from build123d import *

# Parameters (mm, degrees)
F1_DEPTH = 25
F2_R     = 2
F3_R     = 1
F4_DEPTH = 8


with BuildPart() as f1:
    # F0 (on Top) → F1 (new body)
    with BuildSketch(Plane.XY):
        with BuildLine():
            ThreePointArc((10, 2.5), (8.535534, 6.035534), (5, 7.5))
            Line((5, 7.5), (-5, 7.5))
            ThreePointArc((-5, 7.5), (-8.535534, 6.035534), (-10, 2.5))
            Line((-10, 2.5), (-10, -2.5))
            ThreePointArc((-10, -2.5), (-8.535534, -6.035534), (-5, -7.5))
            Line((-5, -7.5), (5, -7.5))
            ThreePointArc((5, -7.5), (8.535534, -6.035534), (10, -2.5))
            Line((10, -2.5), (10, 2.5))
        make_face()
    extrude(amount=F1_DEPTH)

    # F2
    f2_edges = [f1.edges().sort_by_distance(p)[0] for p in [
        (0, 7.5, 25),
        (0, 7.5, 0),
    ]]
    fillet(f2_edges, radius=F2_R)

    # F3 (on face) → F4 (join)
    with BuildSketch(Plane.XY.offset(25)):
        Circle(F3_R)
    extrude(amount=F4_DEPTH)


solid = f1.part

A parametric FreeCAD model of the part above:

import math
import FreeCAD as App
import Part
import Sketcher

V = App.Vector


def edges_at(feature, points):
    """Names of the edges that pass closest to the given points."""
    edges = feature.Shape.Edges
    near = lambda p: min(range(len(edges)), key=lambda i: edges[i].distToShape(Part.Vertex(*p))[0])
    return sorted({f"Edge{near(p) + 1}" for p in points})

doc = App.newDocument("Part")
body = doc.addObject("PartDesign::Body", "Body")

# Sketch on XY plane
sketch1 = body.newObject("Sketcher::SketchObject", "Sketch")
sketch1.AttachmentSupport = (doc.getObject("XY_Plane"), [""])
sketch1.MapMode = "FlatFace"
sketch1.addGeometry([
    Part.ArcOfCircle(Part.Circle(V(5, 2.5, 0), V(0, 0, 1), 5), math.radians(0), math.radians(90)),  # 0
    Part.LineSegment(V(5, 7.5, 0), V(-5, 7.5, 0)),  # 1
    Part.ArcOfCircle(Part.Circle(V(-5, 2.5, 0), V(0, 0, 1), 5), math.radians(90), math.radians(180)),  # 2
    Part.LineSegment(V(-10, 2.5, 0), V(-10, -2.5, 0)),  # 3
    Part.ArcOfCircle(Part.Circle(V(-5, -2.5, 0), V(0, 0, 1), 5), math.radians(180), math.radians(270)),  # 4
    Part.LineSegment(V(-5, -7.5, 0), V(5, -7.5, 0)),  # 5
    Part.ArcOfCircle(Part.Circle(V(5, -2.5, 0), V(0, 0, 1), 5), math.radians(-90), math.radians(0)),  # 6
    Part.LineSegment(V(10, -2.5, 0), V(10, 2.5, 0)),  # 7
], False)
sketch1.addConstraint([
    Sketcher.Constraint("Tangent", 0, 2, 1, 1),
    Sketcher.Constraint("Tangent", 1, 2, 2, 1),
    Sketcher.Constraint("Tangent", 2, 2, 3, 1),
    Sketcher.Constraint("Tangent", 3, 2, 4, 1),
    Sketcher.Constraint("Tangent", 4, 2, 5, 1),
    Sketcher.Constraint("Tangent", 5, 2, 6, 1),
    Sketcher.Constraint("Tangent", 6, 2, 7, 1),
    Sketcher.Constraint("Tangent", 7, 2, 0, 1),
    Sketcher.Constraint("Horizontal", 1),
    Sketcher.Constraint("Vertical", 3),
    Sketcher.Constraint("Horizontal", 5),
    Sketcher.Constraint("Vertical", 7),
    Sketcher.Constraint("Equal", 0, 2),
    Sketcher.Constraint("Equal", 2, 4),
    Sketcher.Constraint("Equal", 4, 6),
    Sketcher.Constraint("Symmetric", 0, 3, 4, 3, -1, 1),
    Sketcher.Constraint("Radius", 0, 5.0),
    Sketcher.Constraint("DistanceX", 1, 2, 1, 1, 10.0),
    Sketcher.Constraint("DistanceY", 3, 2, 3, 1, 5.0),
])
pad1 = body.newObject("PartDesign::Pad", "Pad")
pad1.Profile = sketch1
pad1.Length = 25
doc.recompute()

fillet = body.newObject("PartDesign::Fillet", "Fillet")
fillet.Base = (pad1, edges_at(pad1, [(0, 7.5, 25), (0, 7.5, 0)]))
fillet.Radius = 2

# Sketch on XY plane
sketch2 = body.newObject("Sketcher::SketchObject", "Sketch001")
sketch2.AttachmentSupport = (doc.getObject("XY_Plane"), [""])
sketch2.MapMode = "FlatFace"
sketch2.AttachmentOffset = App.Placement(V(0, 0, 25), App.Rotation())
sketch2.addGeometry(Part.Circle(V(0, 0, 0), V(0, 0, 1), 1), False)
sketch2.addConstraint([
    Sketcher.Constraint("Coincident", 0, 3, -1, 1),
    Sketcher.Constraint("Diameter", 0, 2.0),
])
pad2 = body.newObject("PartDesign::Pad", "Pad001")
pad2.Profile = sketch2
pad2.Length = 8

doc.recompute()
